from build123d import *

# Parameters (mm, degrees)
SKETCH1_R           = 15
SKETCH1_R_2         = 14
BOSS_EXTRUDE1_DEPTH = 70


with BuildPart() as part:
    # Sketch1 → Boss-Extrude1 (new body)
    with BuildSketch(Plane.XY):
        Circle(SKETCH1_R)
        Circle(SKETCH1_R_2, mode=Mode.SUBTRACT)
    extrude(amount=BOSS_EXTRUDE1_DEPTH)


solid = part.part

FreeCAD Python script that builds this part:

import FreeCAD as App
import Part
import Sketcher

V = App.Vector
Q = App.Units.Quantity

doc = App.newDocument("Part")
body = doc.addObject("PartDesign::Body", "Body")

# Sketch on XY plane
sketch1 = body.newObject("Sketcher::SketchObject", "Sketch")
sketch1.AttachmentSupport = (doc.getObject("XY_Plane"), [""])
sketch1.MapMode = "FlatFace"
sketch1.addGeometry([
    Part.Circle(V(0, 0, 0), V(0, 0, 1), 15),
    Part.Circle(V(0, 0, 0), V(0, 0, 1), 14),
], False)
sketch1.addConstraint([
    Sketcher.Constraint("Coincident", 0, 3, -1, 1),
    Sketcher.Constraint("Coincident", 1, 3, -1, 1),
    Sketcher.Constraint("Diameter", 0, Q("30 mm")),
    Sketcher.Constraint("Diameter", 1, Q("28 mm")),
])
pad1 = body.newObject("PartDesign::Pad", "Pad")
pad1.Profile = sketch1
pad1.Length = 70

doc.recompute()
